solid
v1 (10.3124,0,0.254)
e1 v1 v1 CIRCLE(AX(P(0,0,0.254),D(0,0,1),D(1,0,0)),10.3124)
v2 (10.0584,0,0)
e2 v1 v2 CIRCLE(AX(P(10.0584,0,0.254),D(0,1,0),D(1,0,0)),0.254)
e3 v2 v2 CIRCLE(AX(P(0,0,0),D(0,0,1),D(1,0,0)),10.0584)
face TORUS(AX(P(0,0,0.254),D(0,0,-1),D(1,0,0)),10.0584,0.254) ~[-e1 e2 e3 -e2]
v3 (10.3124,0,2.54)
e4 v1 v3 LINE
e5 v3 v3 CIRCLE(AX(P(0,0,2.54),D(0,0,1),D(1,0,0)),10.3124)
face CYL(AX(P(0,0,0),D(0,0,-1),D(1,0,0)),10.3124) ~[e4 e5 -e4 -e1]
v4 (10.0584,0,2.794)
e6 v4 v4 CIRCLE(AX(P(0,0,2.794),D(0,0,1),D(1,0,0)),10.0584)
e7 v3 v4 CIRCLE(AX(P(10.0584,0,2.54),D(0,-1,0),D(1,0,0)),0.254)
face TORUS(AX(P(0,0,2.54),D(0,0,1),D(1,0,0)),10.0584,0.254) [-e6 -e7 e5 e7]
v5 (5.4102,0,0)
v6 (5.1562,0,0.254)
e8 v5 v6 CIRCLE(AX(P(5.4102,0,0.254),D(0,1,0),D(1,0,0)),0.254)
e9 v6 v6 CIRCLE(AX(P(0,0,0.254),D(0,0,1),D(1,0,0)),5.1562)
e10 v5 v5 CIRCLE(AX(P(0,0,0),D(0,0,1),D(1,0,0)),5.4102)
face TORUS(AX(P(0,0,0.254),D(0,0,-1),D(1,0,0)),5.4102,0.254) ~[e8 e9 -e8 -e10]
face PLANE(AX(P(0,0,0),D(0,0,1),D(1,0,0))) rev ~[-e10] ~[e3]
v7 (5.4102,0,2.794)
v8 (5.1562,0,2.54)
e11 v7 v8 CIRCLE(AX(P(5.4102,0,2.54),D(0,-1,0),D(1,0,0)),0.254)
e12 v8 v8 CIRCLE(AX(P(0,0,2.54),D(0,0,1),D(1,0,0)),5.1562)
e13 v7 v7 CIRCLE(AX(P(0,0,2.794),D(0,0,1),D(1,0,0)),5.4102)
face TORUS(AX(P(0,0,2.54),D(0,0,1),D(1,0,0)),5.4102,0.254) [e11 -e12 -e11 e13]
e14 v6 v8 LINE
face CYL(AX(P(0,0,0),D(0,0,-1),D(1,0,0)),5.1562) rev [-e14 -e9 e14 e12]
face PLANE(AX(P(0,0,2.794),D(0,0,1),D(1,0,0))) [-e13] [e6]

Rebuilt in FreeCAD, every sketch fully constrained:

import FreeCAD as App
import Part
import Sketcher
from FreeCAD import Vector
Q = App.Units.Quantity


def edges_at(feature, points):
    """Names of the edges that pass closest to the given points."""
    edges = feature.Shape.Edges
    near = lambda p: min(range(len(edges)), key=lambda i: edges[i].distToShape(Part.Vertex(*p))[0])
    return sorted({f"Edge{near(p) + 1}" for p in points})

doc = App.newDocument("Part")
params = doc.addObject("Spreadsheet::Sheet", "Params")
for row, (alias, value) in enumerate([
    ("sketch1_diameter", "0.812 in"),
    ("sketch1_diameter2", "0.406 in"),
    ("pad1_length", "0.11 in"),
    ("fillet_radius", "0.01 in"),
    ("fillet2_radius", "0.01 in"),
], start=1):
    params.set(f"A{row}", alias)
    params.set(f"B{row}", "=" + value)
    params.setAlias(f"B{row}", alias)

body = doc.addObject("PartDesign::Body", "Body")

# Sketch on XY plane
sketch1 = body.newObject("Sketcher::SketchObject", "Sketch")
sketch1.AttachmentSupport = (doc.getObject("XY_Plane"), [""])
sketch1.MapMode = "FlatFace"
sketch1.addGeometry([
    Part.Circle(Vector(0, 0, 0), Vector(0, 0, 1), 10),
    Part.Circle(Vector(0, 0, 0), Vector(0, 0, 1), 5),
], False)
sketch1.addConstraint([
    Sketcher.Constraint("Coincident", 0, 3, -1, 1),
    Sketcher.Constraint("Coincident", 1, 3, -1, 1),
    Sketcher.Constraint("Diameter", 0, Q("0.812 in")),
    Sketcher.Constraint("Diameter", 1, Q("0.406 in")),
])
sketch1.setExpression("Constraints[2]", "Params.sketch1_diameter")
sketch1.setExpression("Constraints[3]", "Params.sketch1_diameter2")
pad1 = body.newObject("PartDesign::Pad", "Pad")
pad1.Profile = sketch1
pad1.setExpression("Length", "Params.pad1_length")
doc.recompute()

fillet = body.newObject("PartDesign::Fillet", "Fillet")
fillet.Base = (pad1, edges_at(pad1, [(-10.312, 0, 2.794), (-10.312, 0, 0)]))
fillet.setExpression("Radius", "Params.fillet_radius")
doc.recompute()

fillet2 = body.newObject("PartDesign::Fillet", "Fillet001")
fillet2.Base = (fillet, edges_at(fillet, [(-5.156, 0, 2.794), (-5.156, 0, 0)]))
fillet2.setExpression("Radius", "Params.fillet2_radius")

doc.recompute()
